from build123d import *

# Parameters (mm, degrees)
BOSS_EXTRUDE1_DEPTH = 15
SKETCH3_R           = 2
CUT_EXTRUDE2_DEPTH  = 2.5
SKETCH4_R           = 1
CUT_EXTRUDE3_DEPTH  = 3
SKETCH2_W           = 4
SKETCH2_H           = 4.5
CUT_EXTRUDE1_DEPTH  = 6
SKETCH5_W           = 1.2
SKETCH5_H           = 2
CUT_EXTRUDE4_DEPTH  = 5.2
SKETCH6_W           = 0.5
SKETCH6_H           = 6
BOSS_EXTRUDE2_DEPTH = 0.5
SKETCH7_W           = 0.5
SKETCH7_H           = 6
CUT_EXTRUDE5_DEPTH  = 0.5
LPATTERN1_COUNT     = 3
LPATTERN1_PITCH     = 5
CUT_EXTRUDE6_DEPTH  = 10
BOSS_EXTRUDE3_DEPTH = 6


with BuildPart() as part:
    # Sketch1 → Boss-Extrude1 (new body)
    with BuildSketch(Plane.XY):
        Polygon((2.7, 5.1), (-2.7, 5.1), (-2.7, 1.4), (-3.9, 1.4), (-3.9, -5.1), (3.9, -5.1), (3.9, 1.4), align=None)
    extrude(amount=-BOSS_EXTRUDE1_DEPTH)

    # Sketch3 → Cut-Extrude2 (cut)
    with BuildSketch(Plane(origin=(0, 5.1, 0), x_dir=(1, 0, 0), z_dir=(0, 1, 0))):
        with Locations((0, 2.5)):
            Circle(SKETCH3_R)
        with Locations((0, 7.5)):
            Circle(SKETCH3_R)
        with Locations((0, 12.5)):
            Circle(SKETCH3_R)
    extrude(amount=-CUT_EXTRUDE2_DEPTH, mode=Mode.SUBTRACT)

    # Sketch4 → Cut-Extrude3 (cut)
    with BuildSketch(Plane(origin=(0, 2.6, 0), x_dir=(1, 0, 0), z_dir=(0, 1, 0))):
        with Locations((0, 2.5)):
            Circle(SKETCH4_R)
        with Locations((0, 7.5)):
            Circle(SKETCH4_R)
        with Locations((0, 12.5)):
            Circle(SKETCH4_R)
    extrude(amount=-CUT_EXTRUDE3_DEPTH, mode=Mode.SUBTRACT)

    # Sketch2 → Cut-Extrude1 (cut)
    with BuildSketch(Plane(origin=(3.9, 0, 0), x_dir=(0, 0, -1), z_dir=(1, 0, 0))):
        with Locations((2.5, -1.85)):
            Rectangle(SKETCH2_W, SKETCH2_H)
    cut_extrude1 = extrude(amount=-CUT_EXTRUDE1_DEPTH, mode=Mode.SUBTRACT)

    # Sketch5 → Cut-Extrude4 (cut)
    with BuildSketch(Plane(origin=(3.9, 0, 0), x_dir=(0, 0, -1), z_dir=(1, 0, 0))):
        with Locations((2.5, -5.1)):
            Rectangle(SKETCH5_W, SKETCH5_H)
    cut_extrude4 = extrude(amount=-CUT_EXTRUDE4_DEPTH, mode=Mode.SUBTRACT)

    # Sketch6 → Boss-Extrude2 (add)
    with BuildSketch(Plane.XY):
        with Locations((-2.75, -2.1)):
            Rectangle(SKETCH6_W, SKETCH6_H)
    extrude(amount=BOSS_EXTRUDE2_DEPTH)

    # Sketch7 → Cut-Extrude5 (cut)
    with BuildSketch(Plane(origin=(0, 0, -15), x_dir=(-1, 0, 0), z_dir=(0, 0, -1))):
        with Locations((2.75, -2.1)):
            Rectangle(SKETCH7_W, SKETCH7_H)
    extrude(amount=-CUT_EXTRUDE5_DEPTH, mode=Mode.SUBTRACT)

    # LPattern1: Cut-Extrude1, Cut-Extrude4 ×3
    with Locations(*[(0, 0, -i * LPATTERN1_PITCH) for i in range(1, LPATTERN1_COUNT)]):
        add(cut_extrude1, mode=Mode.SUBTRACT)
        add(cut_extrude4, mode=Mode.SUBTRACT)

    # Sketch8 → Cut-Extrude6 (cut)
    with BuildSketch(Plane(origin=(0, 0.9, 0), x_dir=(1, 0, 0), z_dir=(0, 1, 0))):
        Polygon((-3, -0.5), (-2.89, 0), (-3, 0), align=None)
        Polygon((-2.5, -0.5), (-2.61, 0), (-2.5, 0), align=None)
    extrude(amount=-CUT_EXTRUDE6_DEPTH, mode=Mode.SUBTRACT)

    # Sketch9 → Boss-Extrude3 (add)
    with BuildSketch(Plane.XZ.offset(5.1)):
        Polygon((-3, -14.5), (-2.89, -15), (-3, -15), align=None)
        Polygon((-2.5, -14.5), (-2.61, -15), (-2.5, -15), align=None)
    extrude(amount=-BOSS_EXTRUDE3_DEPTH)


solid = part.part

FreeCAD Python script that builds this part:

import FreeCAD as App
import Part
import Sketcher

V = App.Vector

doc = App.newDocument("Part")
params = doc.addObject("Spreadsheet::Sheet", "Params")
for row, (alias, value) in enumerate([
    ("sketch1_width", "5.4 mm"),
    ("sketch1_width2", "1.2 mm"),
    ("sketch1_width3", "7.8 mm"),
    ("sketch1_height", "3.7 mm"),
    ("sketch1_height2", "6.5 mm"),
    ("pad1_length", "15 mm"),
    ("sketch2_diameter", "4 mm"),
    ("pocket1_length", "2.5 mm"),
    ("sketch3_diameter", "2 mm"),
    ("pocket2_length", "3 mm"),
    ("sketch4_height", "4 mm"),
    ("sketch4_width", "4.5 mm"),
    ("pocket3_length", "6 mm"),
    ("sketch5_width", "2 mm"),
    ("sketch5_height", "1.2 mm"),
    ("pocket4_length", "5.2 mm"),
    ("sketch6_height", "6 mm"),
    ("sketch6_width", "0.5 mm"),
    ("pad2_length", "0.5 mm"),
    ("sketch7_height", "6 mm"),
    ("sketch7_width", "0.5 mm"),
    ("pocket5_length", "0.5 mm"),
    ("linearpattern_pitch", "5 mm"),
    ("sketch8_height", "0.5 mm"),
    ("sketch8_width", "0.11 mm"),
    ("pocket6_length", "10 mm"),
    ("sketch9_height", "0.5 mm"),
    ("sketch9_width", "0.11 mm"),
    ("pad3_length", "6 mm"),
], start=1):
    params.set(f"A{row}", alias)
    params.set(f"B{row}", "=" + value)
    params.setAlias(f"B{row}", alias)

body = doc.addObject("PartDesign::Body", "Body")

sketch1 = body.newObject("Sketcher::SketchObject", "Sketch")
sketch1.AttachmentSupport = (doc.getObject("XY_Plane"), [""])
sketch1.MapMode = "FlatFace"
sketch1.addGeometry([
    Part.LineSegment(V(2.7, 5.1, 0), V(-2.7, 5.1, 0)),
    Part.LineSegment(V(-2.7, 5.1, 0), V(-2.7, 1.4, 0)),
    Part.LineSegment(V(-2.7, 1.4, 0), V(-3.9, 1.4, 0)),
    Part.LineSegment(V(-3.9, 1.4, 0), V(-3.9, -5.1, 0)),
    Part.LineSegment(V(-3.9, -5.1, 0), V(3.9, -5.1, 0)),
    Part.LineSegment(V(3.9, -5.1, 0), V(3.9, 1.4, 0)),
    Part.LineSegment(V(3.9, 1.4, 0), V(2.7, 5.1, 0)),
], False)
sketch1.addConstraint([
    Sketcher.Constraint("Coincident", 0, 2, 1, 1),
    Sketcher.Constraint("Coincident", 1, 2, 2, 1),
    Sketcher.Constraint("Coincident", 2, 2, 3, 1),
    Sketcher.Constraint("Coincident", 3, 2, 4, 1),
    Sketcher.Constraint("Coincident", 4, 2, 5, 1),
    Sketcher.Constraint("Coincident", 5, 2, 6, 1),
    Sketcher.Constraint("Coincident", 6, 2, 0, 1),
    Sketcher.Constraint("Horizontal", 0),
    Sketcher.Constraint("Vertical", 1),
    Sketcher.Constraint("Horizontal", 2),
    Sketcher.Constraint("Vertical", 3),
    Sketcher.Constraint("Horizontal", 4),
    Sketcher.Constraint("Vertical", 5),
    Sketcher.Constraint("Symmetric", 2, 2, 5, 2, -2),
    Sketcher.Constraint("DistanceX", 0, 2, 0, 1, 5.4),
    Sketcher.Constraint("DistanceX", 2, 2, 2, 1, 1.2),
    Sketcher.Constraint("DistanceX", 4, 1, 4, 2, 7.8),
    Sketcher.Constraint("DistanceY", 1, 2, 1, 1, 3.7),
    Sketcher.Constraint("DistanceY", 3, 2, 3, 1, 6.5),
    Sketcher.Constraint("DistanceY", -1, 1, 0, 2, 5.1),
])
sketch1.setExpression("Constraints[14]", "Params.sketch1_width")
sketch1.setExpression("Constraints[15]", "Params.sketch1_width2")
sketch1.setExpression("Constraints[16]", "Params.sketch1_width3")
sketch1.setExpression("Constraints[17]", "Params.sketch1_height")
sketch1.setExpression("Constraints[18]", "Params.sketch1_height2")
pad1 = body.newObject("PartDesign::Pad", "Pad")
pad1.Profile = sketch1
pad1.setExpression("Length", "Params.pad1_length")
pad1.Reversed = True

sketch2 = body.newObject("Sketcher::SketchObject", "Sketch001")
sketch2.AttachmentSupport = (doc.getObject("XZ_Plane"), [""])
sketch2.MapMode = "FlatFace"
sketch2.AttachmentOffset = App.Placement(V(0, 0, -5.1), App.Rotation())
sketch2.addGeometry([
    Part.Circle(V(0, -2.5, 0), V(0, 0, 1), 2),
    Part.Circle(V(0, -7.5, 0), V(0, 0, 1), 2),
    Part.Circle(V(0, -12.5, 0), V(0, 0, 1), 2),
], False)
sketch2.addConstraint([
    Sketcher.Constraint("Equal", 0, 1),
    Sketcher.Constraint("Equal", 1, 2),
    Sketcher.Constraint("PointOnObject", 0, 3, -2),
    Sketcher.Constraint("PointOnObject", 1, 3, -2),
    Sketcher.Constraint("PointOnObject", 2, 3, -2),
    Sketcher.Constraint("Diameter", 0, 4.0),
    Sketcher.Constraint("DistanceY", 1, 3, 0, 3, 5.0),
    Sketcher.Constraint("DistanceY", 2, 3, 1, 3, 5.0),
    Sketcher.Constraint("DistanceY", 0, 3, -1, 1, 2.5),
])
sketch2.setExpression("Constraints[5]", "Params.sketch2_diameter")
pocket1 = body.newObject("PartDesign::Pocket", "Pocket")
pocket1.Profile = sketch2
pocket1.setExpression("Length", "Params.pocket1_length")
pocket1.Reversed = True

sketch3 = body.newObject("Sketcher::SketchObject", "Sketch002")
sketch3.AttachmentSupport = (doc.getObject("XZ_Plane"), [""])
sketch3.MapMode = "FlatFace"
sketch3.AttachmentOffset = App.Placement(V(0, 0, -2.6), App.Rotation())
sketch3.addGeometry([
    Part.Circle(V(0, -2.5, 0), V(0, 0, 1), 1),
    Part.Circle(V(0, -7.5, 0), V(0, 0, 1), 1),
    Part.Circle(V(0, -12.5, 0), V(0, 0, 1), 1),
], False)
sketch3.addConstraint([
    Sketcher.Constraint("Equal", 0, 1),
    Sketcher.Constraint("Equal", 1, 2),
    Sketcher.Constraint("PointOnObject", 0, 3, -2),
    Sketcher.Constraint("PointOnObject", 1, 3, -2),
    Sketcher.Constraint("PointOnObject", 2, 3, -2),
    Sketcher.Constraint("Diameter", 0, 2.0),
    Sketcher.Constraint("DistanceY", 1, 3, 0, 3, 5.0),
    Sketcher.Constraint("DistanceY", 2, 3, 1, 3, 5.0),
    Sketcher.Constraint("DistanceY", 0, 3, -1, 1, 2.5),
])
sketch3.setExpression("Constraints[5]", "Params.sketch3_diameter")
pocket2 = body.newObject("PartDesign::Pocket", "Pocket001")
pocket2.Profile = sketch3
pocket2.setExpression("Length", "Params.pocket2_length")
pocket2.Reversed = True

sketch4 = body.newObject("Sketcher::SketchObject", "Sketch003")
sketch4.AttachmentSupport = (doc.getObject("YZ_Plane"), [""])
sketch4.MapMode = "FlatFace"
sketch4.AttachmentOffset = App.Placement(V(0, 0, 3.9), App.Rotation())
sketch4.addGeometry([
    Part.LineSegment(V(0.4, -0.5, 0), V(-4.1, -0.5, 0)),
    Part.LineSegment(V(-4.1, -0.5, 0), V(-4.1, -4.5, 0)),
    Part.LineSegment(V(-4.1, -4.5, 0), V(0.4, -4.5, 0)),
    Part.LineSegment(V(0.4, -4.5, 0), V(0.4, -0.5, 0)),
], False)
sketch4.addConstraint([
    Sketcher.Constraint("Coincident", 0, 2, 1, 1),
    Sketcher.Constraint("Coincident", 1, 2, 2, 1),
    Sketcher.Constraint("Coincident", 2, 2, 3, 1),
    Sketcher.Constraint("Coincident", 3, 2, 0, 1),
    Sketcher.Constraint("Horizontal", 0),
    Sketcher.Constraint("Vertical", 1),
    Sketcher.Constraint("Horizontal", 2),
    Sketcher.Constraint("Vertical", 3),
    Sketcher.Constraint("DistanceY", 1, 2, 1, 1, 4.0),
    Sketcher.Constraint("DistanceX", 0, 2, 0, 1, 4.5),
    Sketcher.Constraint("DistanceX", 0, 2, -1, 1, 4.1),
    Sketcher.Constraint("DistanceY", 0, 2, -1, 1, 0.5),
])
sketch4.setExpression("Constraints[8]", "Params.sketch4_height")
sketch4.setExpression("Constraints[9]", "Params.sketch4_width")
pocket3 = body.newObject("PartDesign::Pocket", "Pocket002")
pocket3.Profile = sketch4
pocket3.setExpression("Length", "Params.pocket3_length")

sketch5 = body.newObject("Sketcher::SketchObject", "Sketch004")
sketch5.AttachmentSupport = (doc.getObject("YZ_Plane"), [""])
sketch5.MapMode = "FlatFace"
sketch5.AttachmentOffset = App.Placement(V(0, 0, 3.9), App.Rotation())
sketch5.addGeometry([
    Part.LineSegment(V(-4.1, -1.9, 0), V(-6.1, -1.9, 0)),
    Part.LineSegment(V(-6.1, -1.9, 0), V(-6.1, -3.1, 0)),
    Part.LineSegment(V(-6.1, -3.1, 0), V(-4.1, -3.1, 0)),
    Part.LineSegment(V(-4.1, -3.1, 0), V(-4.1, -1.9, 0)),
], False)
sketch5.addConstraint([
    Sketcher.Constraint("Coincident", 0, 2, 1, 1),
    Sketcher.Constraint("Coincident", 1, 2, 2, 1),
    Sketcher.Constraint("Coincident", 2, 2, 3, 1),
    Sketcher.Constraint("Coincident", 3, 2, 0, 1),
    Sketcher.Constraint("Horizontal", 0),
    Sketcher.Constraint("Vertical", 1),
    Sketcher.Constraint("Horizontal", 2),
    Sketcher.Constraint("Vertical", 3),
    Sketcher.Constraint("DistanceX", 0, 2, 0, 1, 2.0),
    Sketcher.Constraint("DistanceY", 1, 2, 1, 1, 1.2),
    Sketcher.Constraint("DistanceX", 0, 2, -1, 1, 6.1),
    Sketcher.Constraint("DistanceY", 0, 2, -1, 1, 1.9),
])
sketch5.setExpression("Constraints[8]", "Params.sketch5_width")
sketch5.setExpression("Constraints[9]", "Params.sketch5_height")
pocket4 = body.newObject("PartDesign::Pocket", "Pocket003")
pocket4.Profile = sketch5
pocket4.setExpression("Length", "Params.pocket4_length")

sketch6 = body.newObject("Sketcher::SketchObject", "Sketch005")
sketch6.AttachmentSupport = (doc.getObject("XY_Plane"), [""])
sketch6.MapMode = "FlatFace"
sketch6.addGeometry([
    Part.LineSegment(V(-3, 0.9, 0), V(-3, -5.1, 0)),
    Part.LineSegment(V(-3, -5.1, 0), V(-2.5, -5.1, 0)),
    Part.LineSegment(V(-2.5, -5.1, 0), V(-2.5, 0.9, 0)),
    Part.LineSegment(V(-2.5, 0.9, 0), V(-3, 0.9, 0)),
], False)
sketch6.addConstraint([
    Sketcher.Constraint("Coincident", 0, 2, 1, 1),
    Sketcher.Constraint("Coincident", 1, 2, 2, 1),
    Sketcher.Constraint("Coincident", 2, 2, 3, 1),
    Sketcher.Constraint("Coincident", 3, 2, 0, 1),
    Sketcher.Constraint("Vertical", 0),
    Sketcher.Constraint("Horizontal", 1),
    Sketcher.Constraint("Vertical", 2),
    Sketcher.Constraint("Horizontal", 3),
    Sketcher.Constraint("DistanceY", 0, 2, 0, 1, 6.0),
    Sketcher.Constraint("DistanceX", 1, 1, 1, 2, 0.5),
    Sketcher.Constraint("DistanceX", 0, 2, -1, 1, 3.0),
    Sketcher.Constraint("DistanceY", 0, 2, -1, 1, 5.1),
])
sketch6.setExpression("Constraints[8]", "Params.sketch6_height")
sketch6.setExpression("Constraints[9]", "Params.sketch6_width")
pad2 = body.newObject("PartDesign::Pad", "Pad001")
pad2.Profile = sketch6
pad2.setExpression("Length", "Params.pad2_length")

sketch7 = body.newObject("Sketcher::SketchObject", "Sketch006")
sketch7.AttachmentSupport = (doc.getObject("XY_Plane"), [""])
sketch7.MapMode = "FlatFace"
sketch7.AttachmentOffset = App.Placement(V(0, 0, -15), App.Rotation())
sketch7.addGeometry([
    Part.LineSegment(V(-2.5, 0.9, 0), V(-2.5, -5.1, 0)),
    Part.LineSegment(V(-2.5, -5.1, 0), V(-3, -5.1, 0)),
    Part.LineSegment(V(-3, -5.1, 0), V(-3, 0.9, 0)),
    Part.LineSegment(V(-3, 0.9, 0), V(-2.5, 0.9, 0)),
], False)
sketch7.addConstraint([
    Sketcher.Constraint("Coincident", 0, 2, 1, 1),
    Sketcher.Constraint("Coincident", 1, 2, 2, 1),
    Sketcher.Constraint("Coincident", 2, 2, 3, 1),
    Sketcher.Constraint("Coincident", 3, 2, 0, 1),
    Sketcher.Constraint("Vertical", 0),
    Sketcher.Constraint("Horizontal", 1),
    Sketcher.Constraint("Vertical", 2),
    Sketcher.Constraint("Horizontal", 3),
    Sketcher.Constraint("DistanceY", 0, 2, 0, 1, 6.0),
    Sketcher.Constraint("DistanceX", 1, 2, 1, 1, 0.5),
    Sketcher.Constraint("DistanceX", 1, 2, -1, 1, 3.0),
    Sketcher.Constraint("DistanceY", 0, 2, -1, 1, 5.1),
])
sketch7.setExpression("Constraints[8]", "Params.sketch7_height")
sketch7.setExpression("Constraints[9]", "Params.sketch7_width")
pocket5 = body.newObject("PartDesign::Pocket", "Pocket004")
pocket5.Profile = sketch7
pocket5.setExpression("Length", "Params.pocket5_length")
pocket5.Reversed = True
doc.recompute()

linearpattern = body.newObject("PartDesign::LinearPattern", "LinearPattern")
linearpattern.Originals = [pocket3, pocket4]
linearpattern.Direction = (doc.getObject("Z_Axis"), [""])
linearpattern.Mode = "offset"
linearpattern.setExpression("Offset", "Params.linearpattern_pitch")
linearpattern.Occurrences = 3
linearpattern.Reversed = True
body.Tip = linearpattern

sketch8 = body.newObject("Sketcher::SketchObject", "Sketch007")
sketch8.AttachmentSupport = (doc.getObject("XZ_Plane"), [""])
sketch8.MapMode = "FlatFace"
sketch8.AttachmentOffset = App.Placement(V(0, 0, -0.9), App.Rotation())
sketch8.addGeometry([
    Part.LineSegment(V(-3, 0.5, 0), V(-2.89, 0, 0)),
    Part.LineSegment(V(-2.89, 0, 0), V(-3, 0, 0)),
    Part.LineSegment(V(-3, 0, 0), V(-3, 0.5, 0)),
    Part.LineSegment(V(-2.61, 0, 0), V(-2.5, 0.5, 0)),
    Part.LineSegment(V(-2.5, 0.5, 0), V(-2.5, 0, 0)),
    Part.LineSegment(V(-2.5, 0, 0), V(-2.61, 0, 0)),
], False)
sketch8.addConstraint([
    Sketcher.Constraint("Coincident", 0, 2, 1, 1),
    Sketcher.Constraint("Coincident", 1, 2, 2, 1),
    Sketcher.Constraint("Coincident", 2, 2, 0, 1),
    Sketcher.Constraint("Coincident", 3, 2, 4, 1),
    Sketcher.Constraint("Coincident", 4, 2, 5, 1),
    Sketcher.Constraint("Coincident", 5, 2, 3, 1),
    Sketcher.Constraint("Horizontal", 1),
    Sketcher.Constraint("Vertical", 2),
    Sketcher.Constraint("Vertical", 4),
    Sketcher.Constraint("Horizontal", 5),
    Sketcher.Constraint("PointOnObject", 0, 2, -1),
    Sketcher.Constraint("PointOnObject", 4, 2, -1),
    Sketcher.Constraint("Horizontal", 2, 2, 3, 2),
    Sketcher.Constraint("Equal", 1, 5),
    Sketcher.Constraint("DistanceY", 2, 1, 2, 2, 0.5),
    Sketcher.Constraint("DistanceX", 1, 2, -1, 1, 3.0),
    Sketcher.Constraint("DistanceX", 1, 2, 1, 1, 0.11),
    Sketcher.Constraint("DistanceX", 3, 2, -1, 1, 2.5),
])
sketch8.setExpression("Constraints[14]", "Params.sketch8_height")
sketch8.setExpression("Constraints[16]", "Params.sketch8_width")
pocket6 = body.newObject("PartDesign::Pocket", "Pocket005")
pocket6.Profile = sketch8
pocket6.setExpression("Length", "Params.pocket6_length")
pocket6.Reversed = True

sketch9 = body.newObject("Sketcher::SketchObject", "Sketch008")
sketch9.AttachmentSupport = (doc.getObject("XZ_Plane"), [""])
sketch9.MapMode = "FlatFace"
sketch9.AttachmentOffset = App.Placement(V(0, 0, 5.1), App.Rotation())
sketch9.addGeometry([
    Part.LineSegment(V(-2.89, -15, 0), V(-3, -14.5, 0)),
    Part.LineSegment(V(-3, -14.5, 0), V(-3, -15, 0)),
    Part.LineSegment(V(-3, -15, 0), V(-2.89, -15, 0)),
    Part.LineSegment(V(-2.5, -14.5, 0), V(-2.61, -15, 0)),
    Part.LineSegment(V(-2.61, -15, 0), V(-2.5, -15, 0)),
    Part.LineSegment(V(-2.5, -15, 0), V(-2.5, -14.5, 0)),
], False)
sketch9.addConstraint([
    Sketcher.Constraint("Coincident", 0, 2, 1, 1),
    Sketcher.Constraint("Coincident", 1, 2, 2, 1),
    Sketcher.Constraint("Coincident", 2, 2, 0, 1),
    Sketcher.Constraint("Coincident", 3, 2, 4, 1),
    Sketcher.Constraint("Coincident", 4, 2, 5, 1),
    Sketcher.Constraint("Coincident", 5, 2, 3, 1),
    Sketcher.Constraint("Vertical", 1),
    Sketcher.Constraint("Horizontal", 2),
    Sketcher.Constraint("Horizontal", 4),
    Sketcher.Constraint("Vertical", 5),
    Sketcher.Constraint("Horizontal", 2, 2, 3, 2),
    Sketcher.Constraint("Horizontal", 0, 2, 5, 2),
    Sketcher.Constraint("Equal", 2, 4),
    Sketcher.Constraint("DistanceY", 1, 2, 1, 1, 0.5),
    Sketcher.Constraint("DistanceX", 0, 2, -1, 1, 3.0),
    Sketcher.Constraint("DistanceY", 1, 2, -1, 1, 15.0),
    Sketcher.Constraint("DistanceX", 2, 1, 2, 2, 0.11),
    Sketcher.Constraint("DistanceX", 4, 2, -1, 1, 2.5),
])
sketch9.setExpression("Constraints[13]", "Params.sketch9_height")
sketch9.setExpression("Constraints[16]", "Params.sketch9_width")
pad3 = body.newObject("PartDesign::Pad", "Pad002")
pad3.Profile = sketch9
pad3.setExpression("Length", "Params.pad3_length")
pad3.Reversed = True

doc.recompute()
